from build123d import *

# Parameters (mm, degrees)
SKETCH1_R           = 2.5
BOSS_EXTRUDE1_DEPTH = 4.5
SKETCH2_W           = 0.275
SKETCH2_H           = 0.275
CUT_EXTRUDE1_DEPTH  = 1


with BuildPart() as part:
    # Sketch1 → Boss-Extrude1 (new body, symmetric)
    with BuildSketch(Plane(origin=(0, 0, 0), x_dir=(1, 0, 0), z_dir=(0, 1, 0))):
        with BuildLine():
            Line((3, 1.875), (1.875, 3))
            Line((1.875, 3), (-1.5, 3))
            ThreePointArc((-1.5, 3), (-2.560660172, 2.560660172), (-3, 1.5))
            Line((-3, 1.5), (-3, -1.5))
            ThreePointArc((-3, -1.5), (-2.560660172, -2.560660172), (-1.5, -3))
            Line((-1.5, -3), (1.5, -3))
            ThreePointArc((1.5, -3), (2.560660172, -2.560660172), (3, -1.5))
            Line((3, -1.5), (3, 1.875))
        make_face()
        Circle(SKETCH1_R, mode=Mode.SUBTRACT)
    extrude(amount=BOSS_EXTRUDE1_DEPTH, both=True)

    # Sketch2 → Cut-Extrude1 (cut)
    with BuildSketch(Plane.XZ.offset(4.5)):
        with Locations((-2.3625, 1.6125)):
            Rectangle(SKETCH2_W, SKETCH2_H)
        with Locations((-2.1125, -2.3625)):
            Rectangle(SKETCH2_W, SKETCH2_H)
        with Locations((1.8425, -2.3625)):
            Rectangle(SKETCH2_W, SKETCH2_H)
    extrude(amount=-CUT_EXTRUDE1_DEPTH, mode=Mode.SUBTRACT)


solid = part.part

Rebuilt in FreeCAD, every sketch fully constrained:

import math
import FreeCAD as App
import Part
import Sketcher
Q = App.Units.Quantity

doc = App.newDocument("Part")
body = doc.addObject("PartDesign::Body", "Body")

# Sketch on XZ plane
sketch1 = doc.addObject("Sketcher::SketchObject", "Sketch")
body.addObject(sketch1)
sketch1.AttachmentSupport = (doc.XZ_Plane, [""])
sketch1.MapMode = "FlatFace"
sketch1.addGeometry([
    Part.LineSegment(App.Vector(3, -1.9, 0), App.Vector(1.9, -3, 0)),  # 0
    Part.LineSegment(App.Vector(1.9, -3, 0), App.Vector(-1.5, -3, 0)),  # 1
    Part.ArcOfCircle(Part.Circle(App.Vector(-1.5, -1.5, 0), App.Vector(0, 0, 1), 1.5), math.radians(180), math.radians(270)),  # 2
    Part.LineSegment(App.Vector(-3, -1.5, 0), App.Vector(-3, 1.5, 0)),  # 3
    Part.ArcOfCircle(Part.Circle(App.Vector(-1.5, 1.5, 0), App.Vector(0, 0, 1), 1.5), math.radians(90), math.radians(180)),  # 4
    Part.LineSegment(App.Vector(-1.5, 3, 0), App.Vector(1.5, 3, 0)),  # 5
    Part.ArcOfCircle(Part.Circle(App.Vector(1.5, 1.5, 0), App.Vector(0, 0, 1), 1.5), math.radians(0), math.radians(90)),  # 6
    Part.LineSegment(App.Vector(3, 1.5, 0), App.Vector(3, -1.9, 0)),  # 7
    Part.Circle(App.Vector(0, 0, 0), App.Vector(0, 0, 1), 2.5),  # 8
], False)
sketch1.addConstraint([
    Sketcher.Constraint("Coincident", 0, 2, 1, 1),
    Sketcher.Constraint("Tangent", 1, 2, 2, 2),
    Sketcher.Constraint("Tangent", 2, 1, 3, 1),
    Sketcher.Constraint("Tangent", 3, 2, 4, 2),
    Sketcher.Constraint("Tangent", 4, 1, 5, 1),
    Sketcher.Constraint("Tangent", 5, 2, 6, 2),
    Sketcher.Constraint("Tangent", 6, 1, 7, 1),
    Sketcher.Constraint("Coincident", 7, 2, 0, 1),
    Sketcher.Constraint("Horizontal", 1),
    Sketcher.Constraint("Vertical", 3),
    Sketcher.Constraint("Horizontal", 5),
    Sketcher.Constraint("Vertical", 7),
    Sketcher.Constraint("Coincident", 8, 3, -1, 1),
    Sketcher.Constraint("Equal", 2, 4),
    Sketcher.Constraint("Equal", 4, 6),
    Sketcher.Constraint("Symmetric", 2, 3, 6, 3, -1, 1),
    Sketcher.Constraint("Equal", 5, 3),
    Sketcher.Constraint("Equal", 1, 7),
    Sketcher.Constraint("Diameter", 8, Q("5 mm")),
    Sketcher.Constraint("Radius", 2, Q("1.5 mm")),
    Sketcher.Constraint("DistanceX", 5, 1, 5, 2, Q("3 mm")),
    Sketcher.Constraint("DistanceX", 1, 2, 1, 1, Q("3.375 mm")),
])
pad1 = doc.addObject("PartDesign::Pad", "Pad")
body.addObject(pad1)
pad1.Profile = sketch1
pad1.Length = 9
pad1.Midplane = True

# Sketch on XZ plane
sketch2 = doc.addObject("Sketcher::SketchObject", "Sketch001")
body.addObject(sketch2)
sketch2.AttachmentSupport = (doc.XZ_Plane, [""])
sketch2.MapMode = "FlatFace"
sketch2.AttachmentOffset = App.Placement(App.Vector(0, 0, 4.5), App.Rotation())
sketch2.addGeometry([
    Part.LineSegment(App.Vector(-2.5, 1.75, 0), App.Vector(-2.5, 1.48, 0)),  # 0
    Part.LineSegment(App.Vector(-2.5, 1.48, 0), App.Vector(-2.23, 1.48, 0)),  # 1
    Part.LineSegment(App.Vector(-2.23, 1.48, 0), App.Vector(-2.23, 1.75, 0)),  # 2
    Part.LineSegment(App.Vector(-2.23, 1.75, 0), App.Vector(-2.5, 1.75, 0)),  # 3
    Part.LineSegment(App.Vector(-2.25, -2.23, 0), App.Vector(-2.25, -2.5, 0)),  # 4
    Part.LineSegment(App.Vector(-2.25, -2.5, 0), App.Vector(-1.98, -2.5, 0)),  # 5
    Part.LineSegment(App.Vector(-1.98, -2.5, 0), App.Vector(-1.98, -2.23, 0)),  # 6
    Part.LineSegment(App.Vector(-1.98, -2.23, 0), App.Vector(-2.25, -2.23, 0)),  # 7
    Part.LineSegment(App.Vector(1.71, -2.23, 0), App.Vector(1.71, -2.5, 0)),  # 8
    Part.LineSegment(App.Vector(1.71, -2.5, 0), App.Vector(1.98, -2.5, 0)),  # 9
    Part.LineSegment(App.Vector(1.98, -2.5, 0), App.Vector(1.98, -2.23, 0)),  # 10
    Part.LineSegment(App.Vector(1.98, -2.23, 0), App.Vector(1.71, -2.23, 0)),  # 11
], False)
sketch2.addConstraint([
    Sketcher.Constraint("Coincident", 0, 2, 1, 1),
    Sketcher.Constraint("Coincident", 1, 2, 2, 1),
    Sketcher.Constraint("Coincident", 2, 2, 3, 1),
    Sketcher.Constraint("Coincident", 3, 2, 0, 1),
    Sketcher.Constraint("Coincident", 4, 2, 5, 1),
    Sketcher.Constraint("Coincident", 5, 2, 6, 1),
    Sketcher.Constraint("Coincident", 6, 2, 7, 1),
    Sketcher.Constraint("Coincident", 7, 2, 4, 1),
    Sketcher.Constraint("Coincident", 8, 2, 9, 1),
    Sketcher.Constraint("Coincident", 9, 2, 10, 1),
    Sketcher.Constraint("Coincident", 10, 2, 11, 1),
    Sketcher.Constraint("Coincident", 11, 2, 8, 1),
    Sketcher.Constraint("Vertical", 0),
    Sketcher.Constraint("Horizontal", 1),
    Sketcher.Constraint("Vertical", 2),
    Sketcher.Constraint("Horizontal", 3),
    Sketcher.Constraint("Vertical", 4),
    Sketcher.Constraint("Horizontal", 5),
    Sketcher.Constraint("Vertical", 6),
    Sketcher.Constraint("Horizontal", 7),
    Sketcher.Constraint("Vertical", 8),
    Sketcher.Constraint("Horizontal", 9),
    Sketcher.Constraint("Vertical", 10),
    Sketcher.Constraint("Horizontal", 11),
    Sketcher.Constraint("Horizontal", 5, 2, 8, 2),
    Sketcher.Constraint("Horizontal", 7, 2, 10, 2),
    Sketcher.Constraint("Equal", 3, 5),
    Sketcher.Constraint("Equal", 7, 9),
    Sketcher.Constraint("Equal", 11, 0),
    Sketcher.Constraint("Equal", 2, 4),
    Sketcher.Constraint("DistanceX", 0, 2, -1, 1, Q("2.5 mm")),
    Sketcher.Constraint("DistanceY", 4, 2, -1, 1, Q("2.5 mm")),
    Sketcher.Constraint("DistanceY", 6, 2, 1, 2, Q("3.7 mm")),
    Sketcher.Constraint("DistanceX", 1, 1, 1, 2, Q("0.275 mm")),
    Sketcher.Constraint("DistanceX", 4, 2, -1, 1, Q("2.25 mm")),
    Sketcher.Constraint("DistanceX", -1, 1, 9, 2, Q("1.98 mm")),
])
pocket1 = doc.addObject("PartDesign::Pocket", "Pocket")
body.addObject(pocket1)
pocket1.Profile = sketch2
pocket1.Length = 1

doc.recompute()
